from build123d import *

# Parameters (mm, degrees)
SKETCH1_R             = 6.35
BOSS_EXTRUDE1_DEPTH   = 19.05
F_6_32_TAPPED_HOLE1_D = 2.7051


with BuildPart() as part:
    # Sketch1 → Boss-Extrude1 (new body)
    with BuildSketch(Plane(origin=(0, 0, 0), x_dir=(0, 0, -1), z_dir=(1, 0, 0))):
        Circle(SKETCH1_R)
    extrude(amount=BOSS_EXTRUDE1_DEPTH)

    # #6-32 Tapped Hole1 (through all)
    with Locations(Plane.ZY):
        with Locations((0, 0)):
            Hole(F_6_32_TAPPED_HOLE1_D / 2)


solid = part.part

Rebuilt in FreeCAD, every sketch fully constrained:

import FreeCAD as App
import Part
import Sketcher
from FreeCAD import Vector
Q = App.Units.Quantity

doc = App.newDocument("Part")
body = doc.addObject("PartDesign::Body", "Body")

# Sketch on YZ plane
sketch1 = body.newObject("Sketcher::SketchObject", "Sketch")
sketch1.AttachmentSupport = (doc.getObject("YZ_Plane"), [""])
sketch1.MapMode = "FlatFace"
sketch1.addGeometry(Part.Circle(Vector(0, 0, 0), Vector(0, 0, 1), 6.35), False)
sketch1.addConstraint([
    Sketcher.Constraint("Coincident", 0, 3, -1, 1),
    Sketcher.Constraint("Diameter", 0, Q("0.5 in")),
])
pad1 = body.newObject("PartDesign::Pad", "Pad")
pad1.Profile = sketch1
pad1.Length = Q("0.75 in")

# Sketch on YZ plane
sketch2 = body.newObject("Sketcher::SketchObject", "Sketch001")
sketch2.AttachmentSupport = (doc.getObject("YZ_Plane"), [""])
sketch2.MapMode = "FlatFace"
sketch2.addGeometry(Part.Circle(Vector(0, 0, 0), Vector(0, 0, 1), 1.35255), False)
sketch2.addConstraint([
    Sketcher.Constraint("Coincident", 0, 3, -1, 1),
    Sketcher.Constraint("Diameter", 0, Q("0.1065 in")),
])
doc.recompute()
hole = body.newObject("PartDesign::Hole", "Hole")
hole.Profile = sketch2
hole.ThreadType = "None"
hole.Diameter = Q("0.1065 in")
hole.DepthType = "ThroughAll"
hole.Reversed = True

doc.recompute()
